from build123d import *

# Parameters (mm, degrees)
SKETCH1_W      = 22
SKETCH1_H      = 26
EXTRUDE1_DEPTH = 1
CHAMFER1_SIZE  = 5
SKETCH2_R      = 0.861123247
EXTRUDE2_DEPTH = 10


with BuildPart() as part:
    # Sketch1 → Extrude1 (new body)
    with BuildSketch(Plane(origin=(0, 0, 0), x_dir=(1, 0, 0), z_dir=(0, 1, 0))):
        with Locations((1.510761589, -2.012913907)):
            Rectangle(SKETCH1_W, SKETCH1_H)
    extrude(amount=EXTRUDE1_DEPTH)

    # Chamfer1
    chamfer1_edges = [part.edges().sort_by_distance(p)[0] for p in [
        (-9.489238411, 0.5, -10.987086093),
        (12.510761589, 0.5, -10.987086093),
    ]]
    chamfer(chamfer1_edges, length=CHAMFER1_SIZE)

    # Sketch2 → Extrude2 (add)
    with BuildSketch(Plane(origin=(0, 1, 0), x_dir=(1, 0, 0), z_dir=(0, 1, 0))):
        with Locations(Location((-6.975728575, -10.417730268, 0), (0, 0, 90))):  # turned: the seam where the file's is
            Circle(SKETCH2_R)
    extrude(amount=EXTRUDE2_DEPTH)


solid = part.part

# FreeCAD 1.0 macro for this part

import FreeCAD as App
import Part
import Sketcher
Q = App.Units.Quantity


def edges_at(feature, points):
    """Names of the edges that pass closest to the given points."""
    edges = feature.Shape.Edges
    near = lambda p: min(range(len(edges)), key=lambda i: edges[i].distToShape(Part.Vertex(*p))[0])
    return sorted({f"Edge{near(p) + 1}" for p in points})


def add_polygon(sketch, points):
    """Adds a closed chain of lines whose ends are joined by coincident constraints."""
    first, n = sketch.GeometryCount, len(points)
    for a, b in zip(points, points[1:] + points[:1]):
        sketch.addGeometry(Part.LineSegment(App.Vector(*a, 0), App.Vector(*b, 0)), False)
    for i in range(n):
        sketch.addConstraint(Sketcher.Constraint("Coincident", first + i, 2, first + (i + 1) % n, 1))

doc = App.newDocument("Part")
params = doc.addObject("Spreadsheet::Sheet", "Params")
for row, (alias, value) in enumerate([
    ("sketch1_width", "22 mm"),
    ("sketch1_height", "26 mm"),
    ("pad1_length", "1 mm"),
    ("chamfer_size", "5 mm"),
    ("pad2_length", "10 mm"),
], start=1):
    params.set(f"A{row}", alias)
    params.set(f"B{row}", "=" + value)
    params.setAlias(f"B{row}", alias)

body = doc.addObject("PartDesign::Body", "Body")

# Sketch on XZ plane
sketch1 = doc.addObject("Sketcher::SketchObject", "Sketch")
body.addObject(sketch1)
sketch1.AttachmentSupport = (doc.XZ_Plane, [""])
sketch1.MapMode = "FlatFace"
add_polygon(sketch1, [(-9.489238, -10.987086), (-9.489238, 15.012914), (12.510762, 15.012914), (12.510762, -10.987086)])  # lines 0-3
sketch1.addConstraint([
    Sketcher.Constraint("Vertical", 0),
    Sketcher.Constraint("Horizontal", 1),
    Sketcher.Constraint("Vertical", 2),
    Sketcher.Constraint("Horizontal", 3),
    Sketcher.Constraint("DistanceX", 1, 1, 1, 2, Q("22 mm")),
    Sketcher.Constraint("DistanceY", 0, 1, 0, 2, Q("26 mm")),
    Sketcher.Constraint("DistanceX", 0, 2, -1, 1, Q("9.489238 mm")),
    Sketcher.Constraint("DistanceY", -1, 1, 0, 2, Q("15.012914 mm")),
])
sketch1.setExpression("Constraints[8]", "Params.sketch1_width")
sketch1.setExpression("Constraints[9]", "Params.sketch1_height")
pad1 = doc.addObject("PartDesign::Pad", "Pad")
body.addObject(pad1)
pad1.Profile = sketch1
pad1.setExpression("Length", "Params.pad1_length")
pad1.Reversed = True
doc.recompute()

chamfer = doc.addObject("PartDesign::Chamfer", "Chamfer")
body.addObject(chamfer)
chamfer.Base = (pad1, edges_at(pad1, [(-9.489, 0.5, -10.987), (12.511, 0.5, -10.987)]))
chamfer.setExpression("Size", "Params.chamfer_size")

# Sketch on XZ plane
sketch2 = doc.addObject("Sketcher::SketchObject", "Sketch001")
body.addObject(sketch2)
sketch2.AttachmentSupport = (doc.XZ_Plane, [""])
sketch2.MapMode = "FlatFace"
sketch2.AttachmentOffset = App.Placement(App.Vector(0, 0, -1), App.Rotation())
sketch2.addGeometry(Part.Circle(App.Vector(-6.975729, 10.41773, 0), App.Vector(0, 0, 1), 0.861123), False)
sketch2.addConstraint([
    Sketcher.Constraint("Diameter", 0, Q("1.722246 mm")),
    Sketcher.Constraint("DistanceX", 0, 3, -1, 1, Q("6.975729 mm")),
    Sketcher.Constraint("DistanceY", -1, 1, 0, 3, Q("10.41773 mm")),
])
pad2 = doc.addObject("PartDesign::Pad", "Pad001")
body.addObject(pad2)
pad2.Profile = sketch2
pad2.setExpression("Length", "Params.pad2_length")
pad2.Reversed = True

doc.recompute()
